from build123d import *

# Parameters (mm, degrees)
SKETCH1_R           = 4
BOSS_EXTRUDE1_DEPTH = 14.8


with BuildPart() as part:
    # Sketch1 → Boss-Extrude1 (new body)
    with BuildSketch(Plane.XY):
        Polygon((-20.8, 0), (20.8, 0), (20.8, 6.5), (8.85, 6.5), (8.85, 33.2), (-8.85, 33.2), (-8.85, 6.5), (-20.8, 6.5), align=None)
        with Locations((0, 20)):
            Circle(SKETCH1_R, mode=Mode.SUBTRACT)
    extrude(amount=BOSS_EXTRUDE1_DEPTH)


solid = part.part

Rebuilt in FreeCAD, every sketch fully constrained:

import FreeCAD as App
import Part
import Sketcher
from FreeCAD import Vector
Q = App.Units.Quantity

doc = App.newDocument("Part")
body = doc.addObject("PartDesign::Body", "Body")

# Sketch on XY plane
sketch1 = body.newObject("Sketcher::SketchObject", "Sketch")
sketch1.AttachmentSupport = (doc.getObject("XY_Plane"), [""])
sketch1.MapMode = "FlatFace"
sketch1.addGeometry([
    Part.LineSegment(Vector(-20.8, 0, 0), Vector(20.8, 0, 0)),  # 0
    Part.LineSegment(Vector(20.8, 0, 0), Vector(20.8, 6.5, 0)),  # 1
    Part.LineSegment(Vector(20.8, 6.5, 0), Vector(8.85, 6.5, 0)),  # 2
    Part.LineSegment(Vector(8.85, 6.5, 0), Vector(8.85, 33.2, 0)),  # 3
    Part.LineSegment(Vector(8.85, 33.2, 0), Vector(-8.85, 33.2, 0)),  # 4
    Part.LineSegment(Vector(-8.85, 33.2, 0), Vector(-8.85, 6.5, 0)),  # 5
    Part.LineSegment(Vector(-8.85, 6.5, 0), Vector(-20.8, 6.5, 0)),  # 6
    Part.LineSegment(Vector(-20.8, 6.5, 0), Vector(-20.8, 0, 0)),  # 7
    Part.Circle(Vector(0, 20, 0), Vector(0, 0, 1), 4),  # 8
], False)
sketch1.addConstraint([
    Sketcher.Constraint("Coincident", 0, 2, 1, 1),
    Sketcher.Constraint("Coincident", 1, 2, 2, 1),
    Sketcher.Constraint("Coincident", 2, 2, 3, 1),
    Sketcher.Constraint("Coincident", 3, 2, 4, 1),
    Sketcher.Constraint("Coincident", 4, 2, 5, 1),
    Sketcher.Constraint("Coincident", 5, 2, 6, 1),
    Sketcher.Constraint("Coincident", 6, 2, 7, 1),
    Sketcher.Constraint("Coincident", 7, 2, 0, 1),
    Sketcher.Constraint("Horizontal", 0),
    Sketcher.Constraint("Vertical", 1),
    Sketcher.Constraint("Horizontal", 2),
    Sketcher.Constraint("Vertical", 3),
    Sketcher.Constraint("Horizontal", 4),
    Sketcher.Constraint("Vertical", 5),
    Sketcher.Constraint("Horizontal", 6),
    Sketcher.Constraint("Vertical", 7),
    Sketcher.Constraint("Symmetric", 0, 2, 7, 2, -1, 1),
    Sketcher.Constraint("Symmetric", 2, 2, 5, 2, -2),
    Sketcher.Constraint("PointOnObject", 8, 3, -2),
    Sketcher.Constraint("Diameter", 8, Q("8 mm")),
    Sketcher.Constraint("DistanceX", 0, 1, 0, 2, Q("41.6 mm")),
    Sketcher.Constraint("DistanceX", 4, 2, 4, 1, Q("17.7 mm")),
    Sketcher.Constraint("DistanceY", 1, 1, 1, 2, Q("6.5 mm")),
    Sketcher.Constraint("DistanceY", 3, 1, 3, 2, Q("26.7 mm")),
    Sketcher.Constraint("DistanceY", -1, 1, 8, 3, Q("20 mm")),
])
pad1 = body.newObject("PartDesign::Pad", "Pad")
pad1.Profile = sketch1
pad1.Length = 14.8

doc.recompute()
